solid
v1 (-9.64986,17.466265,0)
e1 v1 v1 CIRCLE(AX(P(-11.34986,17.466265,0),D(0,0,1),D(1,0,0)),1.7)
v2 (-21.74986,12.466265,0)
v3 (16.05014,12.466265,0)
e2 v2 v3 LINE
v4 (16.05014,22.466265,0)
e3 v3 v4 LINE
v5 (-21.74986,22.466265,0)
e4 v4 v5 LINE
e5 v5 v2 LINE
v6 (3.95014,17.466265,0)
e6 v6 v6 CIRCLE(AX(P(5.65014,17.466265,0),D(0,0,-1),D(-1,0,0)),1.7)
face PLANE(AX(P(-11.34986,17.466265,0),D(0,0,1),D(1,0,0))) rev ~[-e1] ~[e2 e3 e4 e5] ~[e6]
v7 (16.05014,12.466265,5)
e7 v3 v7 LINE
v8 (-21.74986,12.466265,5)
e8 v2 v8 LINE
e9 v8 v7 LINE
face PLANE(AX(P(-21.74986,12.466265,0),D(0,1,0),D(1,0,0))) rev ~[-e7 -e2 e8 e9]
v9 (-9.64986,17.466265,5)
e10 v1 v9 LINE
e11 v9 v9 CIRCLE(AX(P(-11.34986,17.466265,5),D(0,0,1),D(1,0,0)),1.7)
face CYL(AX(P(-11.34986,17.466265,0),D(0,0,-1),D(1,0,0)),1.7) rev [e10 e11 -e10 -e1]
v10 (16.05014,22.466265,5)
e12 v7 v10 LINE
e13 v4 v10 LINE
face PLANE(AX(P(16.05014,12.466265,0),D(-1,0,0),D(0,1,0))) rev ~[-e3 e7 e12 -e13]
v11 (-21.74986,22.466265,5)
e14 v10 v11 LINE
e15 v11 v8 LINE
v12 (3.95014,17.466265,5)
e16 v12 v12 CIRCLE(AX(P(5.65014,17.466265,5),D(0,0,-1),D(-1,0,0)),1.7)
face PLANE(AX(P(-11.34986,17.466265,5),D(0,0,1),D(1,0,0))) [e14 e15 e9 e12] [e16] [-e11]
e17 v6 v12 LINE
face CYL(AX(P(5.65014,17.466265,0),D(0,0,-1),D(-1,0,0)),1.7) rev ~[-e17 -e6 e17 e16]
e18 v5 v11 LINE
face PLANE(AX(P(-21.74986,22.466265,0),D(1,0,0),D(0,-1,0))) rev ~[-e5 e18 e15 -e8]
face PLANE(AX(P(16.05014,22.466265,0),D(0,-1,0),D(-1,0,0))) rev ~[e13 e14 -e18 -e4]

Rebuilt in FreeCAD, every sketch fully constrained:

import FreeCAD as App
import Part
import Sketcher
from FreeCAD import Vector


def add_polygon(sketch, points):
    """Adds a closed chain of lines whose ends are joined by coincident constraints."""
    first, n = sketch.GeometryCount, len(points)
    for a, b in zip(points, points[1:] + points[:1]):
        sketch.addGeometry(Part.LineSegment(App.Vector(*a, 0), App.Vector(*b, 0)), False)
    for i in range(n):
        sketch.addConstraint(Sketcher.Constraint("Coincident", first + i, 2, first + (i + 1) % n, 1))

doc = App.newDocument("Part")
body = doc.addObject("PartDesign::Body", "Body")

sketch1 = body.newObject("Sketcher::SketchObject", "Sketch")
sketch1.AttachmentSupport = (doc.getObject("XY_Plane"), [""])
sketch1.MapMode = "FlatFace"
add_polygon(sketch1, [(-21.74986, 22.466265), (-21.74986, 12.466265), (16.05014, 12.466265), (16.05014, 22.466265)])
sketch1.addGeometry(Part.Circle(Vector(-11.34986, 17.466265, 0), Vector(0, 0, 1), 1.7), False)
sketch1.addGeometry(Part.Circle(Vector(5.65014, 17.466265, 0), Vector(0, 0, 1), 1.7), False)
sketch1.addConstraint([
    Sketcher.Constraint("Vertical", 0),
    Sketcher.Constraint("Horizontal", 1),
    Sketcher.Constraint("Vertical", 2),
    Sketcher.Constraint("Horizontal", 3),
    Sketcher.Constraint("Equal", 4, 5),
    Sketcher.Constraint("Horizontal", 4, 3, 5, 3),
    Sketcher.Constraint("Diameter", 4, 3.4),
    Sketcher.Constraint("DistanceY", 0, 2, 0, 1, 10.0),
    Sketcher.Constraint("DistanceX", 1, 1, 1, 2, 37.8),
    Sketcher.Constraint("DistanceX", 4, 3, 5, 3, 17.0),
    Sketcher.Constraint("DistanceY", 0, 2, 4, 3, 5.0),
    Sketcher.Constraint("DistanceX", 0, 2, 4, 3, 10.4),
    Sketcher.Constraint("DistanceX", 4, 3, -1, 1, 11.34986),
    Sketcher.Constraint("DistanceY", -1, 1, 4, 3, 17.466265),
])
pad1 = body.newObject("PartDesign::Pad", "Pad")
pad1.Profile = sketch1
pad1.Length = 5

doc.recompute()
